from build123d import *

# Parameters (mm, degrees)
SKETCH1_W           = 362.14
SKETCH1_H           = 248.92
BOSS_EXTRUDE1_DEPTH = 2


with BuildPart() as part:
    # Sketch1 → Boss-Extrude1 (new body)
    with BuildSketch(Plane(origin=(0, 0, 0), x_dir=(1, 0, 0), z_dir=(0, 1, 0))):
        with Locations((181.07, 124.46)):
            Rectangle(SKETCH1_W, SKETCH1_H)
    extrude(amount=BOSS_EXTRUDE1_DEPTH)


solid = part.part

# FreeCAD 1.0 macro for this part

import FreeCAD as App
import Part
import Sketcher

doc = App.newDocument("Part")
params = doc.addObject("Spreadsheet::Sheet", "Params")
for row, (alias, value) in enumerate([
    ("sketch1_width", "362.14 mm"),
    ("sketch1_height", "248.92 mm"),
    ("pad1_length", "2 mm"),
], start=1):
    params.set(f"A{row}", alias)
    params.set(f"B{row}", "=" + value)
    params.setAlias(f"B{row}", alias)

body = doc.addObject("PartDesign::Body", "Body")

sketch1 = body.newObject("Sketcher::SketchObject", "Sketch")
sketch1.AttachmentSupport = (doc.getObject("XZ_Plane"), [""])
sketch1.MapMode = "FlatFace"
sketch1.addGeometry([
    Part.LineSegment(App.Vector(0, -249, 0), App.Vector(0, 0, 0)),
    Part.LineSegment(App.Vector(0, 0, 0), App.Vector(362, 0, 0)),
    Part.LineSegment(App.Vector(362, 0, 0), App.Vector(362, -249, 0)),
    Part.LineSegment(App.Vector(362, -249, 0), App.Vector(0, -249, 0)),
], False)
sketch1.addConstraint([
    Sketcher.Constraint("Coincident", 0, 2, 1, 1),
    Sketcher.Constraint("Coincident", 1, 2, 2, 1),
    Sketcher.Constraint("Coincident", 2, 2, 3, 1),
    Sketcher.Constraint("Coincident", 3, 2, 0, 1),
    Sketcher.Constraint("Vertical", 0),
    Sketcher.Constraint("Horizontal", 1),
    Sketcher.Constraint("Vertical", 2),
    Sketcher.Constraint("Horizontal", 3),
    Sketcher.Constraint("Coincident", 0, 2, -1, 1),
    Sketcher.Constraint("DistanceX", 1, 1, 1, 2, 362.14),
    Sketcher.Constraint("DistanceY", 0, 1, 0, 2, 248.92),
])
sketch1.setExpression("Constraints[9]", "Params.sketch1_width")
sketch1.setExpression("Constraints[10]", "Params.sketch1_height")
pad1 = body.newObject("PartDesign::Pad", "Pad")
pad1.Profile = sketch1
pad1.setExpression("Length", "Params.pad1_length")
pad1.Reversed = True

doc.recompute()
